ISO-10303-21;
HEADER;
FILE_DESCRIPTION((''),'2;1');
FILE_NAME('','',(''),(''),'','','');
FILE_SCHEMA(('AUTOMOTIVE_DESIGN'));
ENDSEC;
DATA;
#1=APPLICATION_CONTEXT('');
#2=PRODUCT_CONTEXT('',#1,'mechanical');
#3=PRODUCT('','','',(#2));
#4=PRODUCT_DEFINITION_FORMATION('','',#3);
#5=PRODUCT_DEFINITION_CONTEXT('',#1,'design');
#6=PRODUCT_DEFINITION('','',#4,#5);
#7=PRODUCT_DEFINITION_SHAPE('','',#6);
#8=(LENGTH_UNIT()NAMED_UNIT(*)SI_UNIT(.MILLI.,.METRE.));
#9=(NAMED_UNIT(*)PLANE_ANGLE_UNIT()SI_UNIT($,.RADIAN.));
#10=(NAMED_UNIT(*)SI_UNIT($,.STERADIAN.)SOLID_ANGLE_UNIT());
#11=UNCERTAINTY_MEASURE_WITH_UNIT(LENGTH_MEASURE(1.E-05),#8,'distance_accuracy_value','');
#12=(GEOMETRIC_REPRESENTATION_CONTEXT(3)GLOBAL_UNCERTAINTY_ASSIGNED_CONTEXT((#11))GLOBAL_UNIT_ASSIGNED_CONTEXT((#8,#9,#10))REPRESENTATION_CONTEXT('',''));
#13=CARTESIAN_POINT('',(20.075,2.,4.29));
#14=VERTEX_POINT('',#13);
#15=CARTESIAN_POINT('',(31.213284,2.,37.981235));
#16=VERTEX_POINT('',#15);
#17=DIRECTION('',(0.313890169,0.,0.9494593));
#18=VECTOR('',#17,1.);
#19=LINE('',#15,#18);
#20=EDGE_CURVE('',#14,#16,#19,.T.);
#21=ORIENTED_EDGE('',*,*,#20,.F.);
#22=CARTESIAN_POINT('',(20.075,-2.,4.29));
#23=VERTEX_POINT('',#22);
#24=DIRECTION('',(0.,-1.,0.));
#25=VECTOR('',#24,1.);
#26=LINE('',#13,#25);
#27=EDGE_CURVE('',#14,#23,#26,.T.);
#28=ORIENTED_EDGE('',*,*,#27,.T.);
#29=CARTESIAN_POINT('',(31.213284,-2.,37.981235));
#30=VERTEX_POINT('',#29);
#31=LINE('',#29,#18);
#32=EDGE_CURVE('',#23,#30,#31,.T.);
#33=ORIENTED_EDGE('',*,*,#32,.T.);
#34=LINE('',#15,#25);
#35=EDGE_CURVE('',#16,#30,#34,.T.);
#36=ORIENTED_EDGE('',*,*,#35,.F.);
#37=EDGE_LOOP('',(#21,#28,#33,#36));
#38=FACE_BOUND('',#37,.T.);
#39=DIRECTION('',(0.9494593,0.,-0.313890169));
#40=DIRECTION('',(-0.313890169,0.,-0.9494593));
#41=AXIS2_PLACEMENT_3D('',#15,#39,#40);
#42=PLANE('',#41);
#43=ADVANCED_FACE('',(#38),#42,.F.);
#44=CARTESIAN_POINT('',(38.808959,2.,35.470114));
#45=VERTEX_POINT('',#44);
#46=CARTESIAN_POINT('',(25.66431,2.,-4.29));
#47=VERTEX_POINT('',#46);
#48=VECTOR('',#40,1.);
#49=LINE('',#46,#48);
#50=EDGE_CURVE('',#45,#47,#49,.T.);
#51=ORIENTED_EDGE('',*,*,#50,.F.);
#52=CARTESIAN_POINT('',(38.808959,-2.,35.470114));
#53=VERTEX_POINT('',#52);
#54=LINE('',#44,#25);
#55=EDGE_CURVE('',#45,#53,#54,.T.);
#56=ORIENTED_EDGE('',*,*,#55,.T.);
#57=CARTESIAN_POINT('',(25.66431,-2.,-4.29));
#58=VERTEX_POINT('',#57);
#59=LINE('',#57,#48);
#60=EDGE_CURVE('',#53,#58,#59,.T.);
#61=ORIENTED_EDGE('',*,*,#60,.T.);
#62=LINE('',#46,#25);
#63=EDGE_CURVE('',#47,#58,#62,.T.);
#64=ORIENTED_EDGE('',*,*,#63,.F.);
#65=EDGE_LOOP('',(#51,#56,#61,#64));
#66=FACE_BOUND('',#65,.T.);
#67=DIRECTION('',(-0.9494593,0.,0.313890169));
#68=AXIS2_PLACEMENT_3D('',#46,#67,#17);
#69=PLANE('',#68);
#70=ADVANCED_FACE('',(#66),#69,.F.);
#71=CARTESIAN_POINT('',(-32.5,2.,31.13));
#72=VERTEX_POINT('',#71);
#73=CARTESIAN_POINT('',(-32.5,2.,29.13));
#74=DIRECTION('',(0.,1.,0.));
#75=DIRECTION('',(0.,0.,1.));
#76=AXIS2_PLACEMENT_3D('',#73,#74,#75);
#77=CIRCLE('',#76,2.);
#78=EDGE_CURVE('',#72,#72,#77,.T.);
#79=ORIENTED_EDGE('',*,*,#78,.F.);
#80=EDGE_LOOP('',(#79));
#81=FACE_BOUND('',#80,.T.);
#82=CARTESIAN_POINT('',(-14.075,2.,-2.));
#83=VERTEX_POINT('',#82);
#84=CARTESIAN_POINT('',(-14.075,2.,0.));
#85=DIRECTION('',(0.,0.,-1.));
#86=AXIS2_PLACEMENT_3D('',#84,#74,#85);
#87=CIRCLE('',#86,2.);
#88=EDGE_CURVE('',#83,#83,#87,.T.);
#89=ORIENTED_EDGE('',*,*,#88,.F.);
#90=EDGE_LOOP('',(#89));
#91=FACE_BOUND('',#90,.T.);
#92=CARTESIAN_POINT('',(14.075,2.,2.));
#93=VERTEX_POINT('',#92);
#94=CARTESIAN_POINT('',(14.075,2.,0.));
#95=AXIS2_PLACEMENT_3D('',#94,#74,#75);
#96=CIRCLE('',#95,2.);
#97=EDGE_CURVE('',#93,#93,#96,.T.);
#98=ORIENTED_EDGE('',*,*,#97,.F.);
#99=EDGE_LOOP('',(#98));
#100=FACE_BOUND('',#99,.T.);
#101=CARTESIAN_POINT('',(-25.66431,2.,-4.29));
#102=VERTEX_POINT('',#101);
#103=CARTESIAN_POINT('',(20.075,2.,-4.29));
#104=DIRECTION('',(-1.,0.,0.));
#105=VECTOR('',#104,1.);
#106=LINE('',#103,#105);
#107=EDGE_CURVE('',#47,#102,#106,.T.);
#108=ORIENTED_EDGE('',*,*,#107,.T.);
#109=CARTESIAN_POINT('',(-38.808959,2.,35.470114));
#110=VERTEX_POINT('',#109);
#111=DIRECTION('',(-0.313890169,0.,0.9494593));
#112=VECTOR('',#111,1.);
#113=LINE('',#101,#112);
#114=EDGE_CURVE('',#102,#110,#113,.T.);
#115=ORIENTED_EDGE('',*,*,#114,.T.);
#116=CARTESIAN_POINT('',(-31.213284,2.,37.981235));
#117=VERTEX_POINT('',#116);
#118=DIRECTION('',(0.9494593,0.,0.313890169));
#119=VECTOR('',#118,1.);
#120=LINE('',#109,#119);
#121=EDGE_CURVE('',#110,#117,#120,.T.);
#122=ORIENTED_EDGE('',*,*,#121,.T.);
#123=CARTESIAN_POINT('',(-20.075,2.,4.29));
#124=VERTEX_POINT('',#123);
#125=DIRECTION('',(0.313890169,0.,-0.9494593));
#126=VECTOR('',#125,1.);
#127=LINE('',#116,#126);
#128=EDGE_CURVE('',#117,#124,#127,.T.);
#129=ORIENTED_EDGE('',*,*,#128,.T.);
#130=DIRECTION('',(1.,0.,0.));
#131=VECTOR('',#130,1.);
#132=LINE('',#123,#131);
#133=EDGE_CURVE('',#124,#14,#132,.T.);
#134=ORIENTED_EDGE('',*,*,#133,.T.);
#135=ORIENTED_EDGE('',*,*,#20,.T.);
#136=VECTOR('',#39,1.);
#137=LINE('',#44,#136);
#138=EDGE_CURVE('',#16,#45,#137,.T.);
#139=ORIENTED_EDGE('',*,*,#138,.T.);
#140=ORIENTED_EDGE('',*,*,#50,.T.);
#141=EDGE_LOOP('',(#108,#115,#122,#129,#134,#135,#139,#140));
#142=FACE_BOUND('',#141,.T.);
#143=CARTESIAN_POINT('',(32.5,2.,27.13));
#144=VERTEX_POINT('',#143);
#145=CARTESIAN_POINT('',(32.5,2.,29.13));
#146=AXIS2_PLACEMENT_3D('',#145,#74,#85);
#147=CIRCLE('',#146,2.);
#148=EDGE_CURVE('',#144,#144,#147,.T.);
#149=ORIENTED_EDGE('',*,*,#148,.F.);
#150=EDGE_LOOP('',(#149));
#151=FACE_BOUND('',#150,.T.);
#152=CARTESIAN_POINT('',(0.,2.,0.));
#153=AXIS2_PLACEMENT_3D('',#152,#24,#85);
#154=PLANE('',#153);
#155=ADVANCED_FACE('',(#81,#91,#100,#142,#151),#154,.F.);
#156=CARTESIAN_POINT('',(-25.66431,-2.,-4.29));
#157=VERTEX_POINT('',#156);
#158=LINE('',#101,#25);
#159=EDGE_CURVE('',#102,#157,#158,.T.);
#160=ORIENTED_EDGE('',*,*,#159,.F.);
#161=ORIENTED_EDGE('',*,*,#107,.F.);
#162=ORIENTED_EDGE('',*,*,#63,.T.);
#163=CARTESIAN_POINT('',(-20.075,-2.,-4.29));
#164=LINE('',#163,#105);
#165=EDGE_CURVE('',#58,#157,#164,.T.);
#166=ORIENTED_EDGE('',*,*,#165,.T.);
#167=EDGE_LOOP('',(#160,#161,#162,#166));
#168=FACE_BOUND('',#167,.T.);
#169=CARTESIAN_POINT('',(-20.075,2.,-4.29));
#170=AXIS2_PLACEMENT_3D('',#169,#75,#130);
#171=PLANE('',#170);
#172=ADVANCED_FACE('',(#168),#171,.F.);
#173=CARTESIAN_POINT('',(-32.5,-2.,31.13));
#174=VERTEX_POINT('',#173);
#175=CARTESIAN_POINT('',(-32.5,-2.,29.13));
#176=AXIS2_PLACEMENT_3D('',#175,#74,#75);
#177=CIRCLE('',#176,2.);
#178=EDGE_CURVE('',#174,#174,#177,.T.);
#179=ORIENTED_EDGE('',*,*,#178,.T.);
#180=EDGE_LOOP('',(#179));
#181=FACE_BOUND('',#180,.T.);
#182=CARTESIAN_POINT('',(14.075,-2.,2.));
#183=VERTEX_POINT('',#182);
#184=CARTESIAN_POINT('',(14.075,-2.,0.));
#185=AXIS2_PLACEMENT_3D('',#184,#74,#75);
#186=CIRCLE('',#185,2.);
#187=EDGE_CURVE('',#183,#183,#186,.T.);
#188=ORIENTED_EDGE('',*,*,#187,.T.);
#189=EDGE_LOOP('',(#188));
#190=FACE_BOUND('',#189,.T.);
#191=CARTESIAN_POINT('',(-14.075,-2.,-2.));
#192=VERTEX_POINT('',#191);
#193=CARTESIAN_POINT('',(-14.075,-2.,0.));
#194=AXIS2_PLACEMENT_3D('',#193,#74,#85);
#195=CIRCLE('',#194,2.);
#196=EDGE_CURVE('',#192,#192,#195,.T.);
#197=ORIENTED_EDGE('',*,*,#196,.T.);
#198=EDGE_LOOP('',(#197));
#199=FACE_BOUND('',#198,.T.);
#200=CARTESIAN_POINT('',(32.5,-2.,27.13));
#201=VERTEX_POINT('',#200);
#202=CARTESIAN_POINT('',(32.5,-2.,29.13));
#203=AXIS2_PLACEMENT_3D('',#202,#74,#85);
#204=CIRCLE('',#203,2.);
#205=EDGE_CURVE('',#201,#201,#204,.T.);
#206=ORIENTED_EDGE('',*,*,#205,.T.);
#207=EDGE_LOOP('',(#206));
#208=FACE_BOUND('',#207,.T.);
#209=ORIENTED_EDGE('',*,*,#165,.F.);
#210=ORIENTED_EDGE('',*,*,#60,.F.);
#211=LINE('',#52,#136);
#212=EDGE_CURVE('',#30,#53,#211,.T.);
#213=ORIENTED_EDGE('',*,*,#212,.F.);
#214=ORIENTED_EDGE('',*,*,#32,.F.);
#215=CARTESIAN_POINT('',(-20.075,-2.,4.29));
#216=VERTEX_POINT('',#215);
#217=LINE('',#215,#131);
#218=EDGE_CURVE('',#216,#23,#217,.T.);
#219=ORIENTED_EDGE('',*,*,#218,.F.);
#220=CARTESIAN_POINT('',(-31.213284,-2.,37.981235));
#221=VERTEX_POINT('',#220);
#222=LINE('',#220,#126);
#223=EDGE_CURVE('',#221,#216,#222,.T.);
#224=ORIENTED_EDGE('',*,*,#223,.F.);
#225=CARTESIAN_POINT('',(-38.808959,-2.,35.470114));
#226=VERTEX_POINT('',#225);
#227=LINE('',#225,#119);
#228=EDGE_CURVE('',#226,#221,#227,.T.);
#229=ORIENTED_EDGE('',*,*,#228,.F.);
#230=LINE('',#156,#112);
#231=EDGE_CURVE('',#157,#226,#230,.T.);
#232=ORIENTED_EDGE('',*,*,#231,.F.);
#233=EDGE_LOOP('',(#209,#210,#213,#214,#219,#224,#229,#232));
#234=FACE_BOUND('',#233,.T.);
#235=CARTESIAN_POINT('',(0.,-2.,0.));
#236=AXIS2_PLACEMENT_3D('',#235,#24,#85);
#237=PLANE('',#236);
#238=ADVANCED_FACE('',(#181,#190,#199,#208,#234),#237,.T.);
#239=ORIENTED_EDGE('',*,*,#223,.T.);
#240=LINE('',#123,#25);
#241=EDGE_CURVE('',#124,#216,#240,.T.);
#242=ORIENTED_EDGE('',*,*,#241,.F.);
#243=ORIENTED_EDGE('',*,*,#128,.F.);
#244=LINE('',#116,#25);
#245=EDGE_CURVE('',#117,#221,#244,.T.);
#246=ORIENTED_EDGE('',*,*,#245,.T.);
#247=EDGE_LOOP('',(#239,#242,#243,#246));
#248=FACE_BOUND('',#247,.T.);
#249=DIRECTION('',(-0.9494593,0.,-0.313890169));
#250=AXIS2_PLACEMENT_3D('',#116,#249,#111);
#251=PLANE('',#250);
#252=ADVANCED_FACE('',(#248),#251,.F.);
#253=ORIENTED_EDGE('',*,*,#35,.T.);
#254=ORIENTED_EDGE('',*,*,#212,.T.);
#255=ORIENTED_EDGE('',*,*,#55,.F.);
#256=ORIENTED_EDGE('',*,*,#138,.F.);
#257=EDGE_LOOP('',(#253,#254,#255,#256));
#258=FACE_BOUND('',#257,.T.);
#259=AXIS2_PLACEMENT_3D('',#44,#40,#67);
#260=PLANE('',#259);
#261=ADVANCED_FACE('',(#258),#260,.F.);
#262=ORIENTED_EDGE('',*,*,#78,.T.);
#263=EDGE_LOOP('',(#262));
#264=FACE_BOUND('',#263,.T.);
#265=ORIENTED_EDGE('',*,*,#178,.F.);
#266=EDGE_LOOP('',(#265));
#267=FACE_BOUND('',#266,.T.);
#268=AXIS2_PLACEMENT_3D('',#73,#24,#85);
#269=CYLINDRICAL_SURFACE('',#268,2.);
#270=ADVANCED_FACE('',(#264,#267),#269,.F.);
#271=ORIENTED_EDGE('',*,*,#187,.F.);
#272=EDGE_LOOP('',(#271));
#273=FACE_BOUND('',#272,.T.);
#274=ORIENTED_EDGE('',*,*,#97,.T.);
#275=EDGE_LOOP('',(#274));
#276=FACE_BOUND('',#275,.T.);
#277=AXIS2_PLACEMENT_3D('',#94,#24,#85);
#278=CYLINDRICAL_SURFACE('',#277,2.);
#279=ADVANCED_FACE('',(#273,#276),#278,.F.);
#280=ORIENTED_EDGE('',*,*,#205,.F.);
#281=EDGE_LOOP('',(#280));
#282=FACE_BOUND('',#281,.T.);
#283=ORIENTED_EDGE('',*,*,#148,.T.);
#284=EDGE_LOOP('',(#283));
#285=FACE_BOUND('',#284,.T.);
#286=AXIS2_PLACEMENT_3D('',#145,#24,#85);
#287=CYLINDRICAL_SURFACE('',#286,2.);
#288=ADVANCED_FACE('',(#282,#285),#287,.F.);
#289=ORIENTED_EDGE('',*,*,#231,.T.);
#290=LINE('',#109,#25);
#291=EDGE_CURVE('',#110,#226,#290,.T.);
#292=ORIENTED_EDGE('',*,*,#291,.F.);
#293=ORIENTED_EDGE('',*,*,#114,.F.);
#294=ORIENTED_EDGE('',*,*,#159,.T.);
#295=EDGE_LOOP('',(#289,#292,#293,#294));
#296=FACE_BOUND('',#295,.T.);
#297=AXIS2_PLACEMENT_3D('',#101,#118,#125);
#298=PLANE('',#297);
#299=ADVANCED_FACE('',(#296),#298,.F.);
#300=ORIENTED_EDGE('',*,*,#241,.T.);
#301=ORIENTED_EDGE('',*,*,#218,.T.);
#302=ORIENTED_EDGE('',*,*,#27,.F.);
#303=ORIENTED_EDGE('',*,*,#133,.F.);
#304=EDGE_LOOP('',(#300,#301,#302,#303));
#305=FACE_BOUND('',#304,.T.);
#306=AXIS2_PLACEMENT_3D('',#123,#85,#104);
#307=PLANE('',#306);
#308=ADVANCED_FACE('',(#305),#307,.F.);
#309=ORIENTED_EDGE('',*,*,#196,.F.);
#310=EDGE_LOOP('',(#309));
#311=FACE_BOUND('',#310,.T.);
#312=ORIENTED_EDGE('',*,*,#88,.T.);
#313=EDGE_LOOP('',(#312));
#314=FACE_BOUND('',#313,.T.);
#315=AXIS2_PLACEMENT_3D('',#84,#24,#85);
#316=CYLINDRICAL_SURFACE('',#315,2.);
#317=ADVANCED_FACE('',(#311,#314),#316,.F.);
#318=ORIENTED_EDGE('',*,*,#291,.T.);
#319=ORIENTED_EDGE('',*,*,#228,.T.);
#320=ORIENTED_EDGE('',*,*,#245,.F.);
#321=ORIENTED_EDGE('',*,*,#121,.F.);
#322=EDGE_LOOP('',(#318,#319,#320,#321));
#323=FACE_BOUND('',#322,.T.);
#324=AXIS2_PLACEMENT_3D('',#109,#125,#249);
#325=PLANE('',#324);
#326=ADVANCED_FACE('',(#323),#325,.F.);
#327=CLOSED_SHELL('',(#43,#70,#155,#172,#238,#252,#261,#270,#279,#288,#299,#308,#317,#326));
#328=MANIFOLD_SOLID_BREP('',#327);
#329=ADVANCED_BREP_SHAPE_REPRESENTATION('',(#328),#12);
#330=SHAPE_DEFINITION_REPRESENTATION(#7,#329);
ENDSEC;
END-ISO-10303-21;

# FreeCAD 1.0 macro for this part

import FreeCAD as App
import Part
import Sketcher

doc = App.newDocument("Part")
body = doc.addObject("PartDesign::Body", "Body")

sketch1 = doc.addObject("Sketcher::SketchObject", "Sketch")
body.addObject(sketch1)
sketch1.AttachmentSupport = (doc.XZ_Plane, [""])
sketch1.MapMode = "FlatFace"
sketch1.addGeometry([
    Part.LineSegment(App.Vector(-20.1, 4.3, 0), App.Vector(20.1, 4.3, 0)),
    Part.LineSegment(App.Vector(20.1, 4.3, 0), App.Vector(31.2, 38, 0)),
    Part.LineSegment(App.Vector(31.2, 38, 0), App.Vector(38.8, 35.5, 0)),
    Part.LineSegment(App.Vector(38.8, 35.5, 0), App.Vector(25.7, -4.3, 0)),
    Part.LineSegment(App.Vector(25.7, -4.3, 0), App.Vector(-25.7, -4.3, 0)),
    Part.LineSegment(App.Vector(-25.7, -4.3, 0), App.Vector(-38.8, 35.5, 0)),
    Part.LineSegment(App.Vector(-38.8, 35.5, 0), App.Vector(-31.2, 38, 0)),
    Part.LineSegment(App.Vector(-31.2, 38, 0), App.Vector(-20.1, 4.3, 0)),
    Part.Circle(App.Vector(-32.5, 29.1, 0), App.Vector(0, 0, 1), 2),
    Part.Circle(App.Vector(32.5, 29.1, 0), App.Vector(0, 0, 1), 2),
    Part.Circle(App.Vector(-14.1, 0, 0), App.Vector(0, 0, 1), 2),
    Part.Circle(App.Vector(14.1, 0, 0), App.Vector(0, 0, 1), 2),
], False)
sketch1.addConstraint([
    Sketcher.Constraint("Coincident", 0, 2, 1, 1),
    Sketcher.Constraint("Coincident", 1, 2, 2, 1),
    Sketcher.Constraint("Coincident", 2, 2, 3, 1),
    Sketcher.Constraint("Coincident", 3, 2, 4, 1),
    Sketcher.Constraint("Coincident", 4, 2, 5, 1),
    Sketcher.Constraint("Coincident", 5, 2, 6, 1),
    Sketcher.Constraint("Coincident", 6, 2, 7, 1),
    Sketcher.Constraint("Coincident", 7, 2, 0, 1),
    Sketcher.Constraint("Horizontal", 0),
    Sketcher.Constraint("Horizontal", 4),
    Sketcher.Constraint("Equal", 8, 9),
    Sketcher.Constraint("Equal", 9, 10),
    Sketcher.Constraint("Equal", 10, 11),
    Sketcher.Constraint("Symmetric", 10, 3, 11, 3, -1, 1),
    Sketcher.Constraint("Symmetric", 8, 3, 9, 3, -2),
    Sketcher.Constraint("Symmetric", 2, 2, 5, 2, -2),
    Sketcher.Constraint("Symmetric", 1, 2, 6, 2, -2),
    Sketcher.Constraint("PointOnObject", 10, 3, -1),
    Sketcher.Constraint("Perpendicular", 1, 2),
    Sketcher.Constraint("Perpendicular", 2, 3),
    Sketcher.Constraint("Perpendicular", 5, 6),
    Sketcher.Constraint("Perpendicular", 6, 7),
    Sketcher.Constraint("Diameter", 8, 4.0),
    Sketcher.Constraint("Distance", 2, 8.0),
    Sketcher.Constraint("DistanceX", 8, 3, 9, 3, 65.0),
    Sketcher.Constraint("DistanceX", 11, 3, 0, 2, 6.0),
    Sketcher.Constraint("DistanceX", 0, 1, 0, 2, 40.15),
    Sketcher.Constraint("DistanceY", -1, 1, 8, 3, 29.13),
    Sketcher.Constraint("DistanceY", -1, 1, 0, 2, 4.29),
    Sketcher.Constraint("DistanceY", 3, 2, -1, 1, 4.29),
    Sketcher.Constraint("DistanceX", 4, 2, 4, 1, 51.32862),
    Sketcher.Constraint("DistanceX", -1, 1, 2, 2, 38.808959),
])
pad1 = doc.addObject("PartDesign::Pad", "Pad")
body.addObject(pad1)
pad1.Profile = sketch1
pad1.Length = 4
pad1.Midplane = True

doc.recompute()
